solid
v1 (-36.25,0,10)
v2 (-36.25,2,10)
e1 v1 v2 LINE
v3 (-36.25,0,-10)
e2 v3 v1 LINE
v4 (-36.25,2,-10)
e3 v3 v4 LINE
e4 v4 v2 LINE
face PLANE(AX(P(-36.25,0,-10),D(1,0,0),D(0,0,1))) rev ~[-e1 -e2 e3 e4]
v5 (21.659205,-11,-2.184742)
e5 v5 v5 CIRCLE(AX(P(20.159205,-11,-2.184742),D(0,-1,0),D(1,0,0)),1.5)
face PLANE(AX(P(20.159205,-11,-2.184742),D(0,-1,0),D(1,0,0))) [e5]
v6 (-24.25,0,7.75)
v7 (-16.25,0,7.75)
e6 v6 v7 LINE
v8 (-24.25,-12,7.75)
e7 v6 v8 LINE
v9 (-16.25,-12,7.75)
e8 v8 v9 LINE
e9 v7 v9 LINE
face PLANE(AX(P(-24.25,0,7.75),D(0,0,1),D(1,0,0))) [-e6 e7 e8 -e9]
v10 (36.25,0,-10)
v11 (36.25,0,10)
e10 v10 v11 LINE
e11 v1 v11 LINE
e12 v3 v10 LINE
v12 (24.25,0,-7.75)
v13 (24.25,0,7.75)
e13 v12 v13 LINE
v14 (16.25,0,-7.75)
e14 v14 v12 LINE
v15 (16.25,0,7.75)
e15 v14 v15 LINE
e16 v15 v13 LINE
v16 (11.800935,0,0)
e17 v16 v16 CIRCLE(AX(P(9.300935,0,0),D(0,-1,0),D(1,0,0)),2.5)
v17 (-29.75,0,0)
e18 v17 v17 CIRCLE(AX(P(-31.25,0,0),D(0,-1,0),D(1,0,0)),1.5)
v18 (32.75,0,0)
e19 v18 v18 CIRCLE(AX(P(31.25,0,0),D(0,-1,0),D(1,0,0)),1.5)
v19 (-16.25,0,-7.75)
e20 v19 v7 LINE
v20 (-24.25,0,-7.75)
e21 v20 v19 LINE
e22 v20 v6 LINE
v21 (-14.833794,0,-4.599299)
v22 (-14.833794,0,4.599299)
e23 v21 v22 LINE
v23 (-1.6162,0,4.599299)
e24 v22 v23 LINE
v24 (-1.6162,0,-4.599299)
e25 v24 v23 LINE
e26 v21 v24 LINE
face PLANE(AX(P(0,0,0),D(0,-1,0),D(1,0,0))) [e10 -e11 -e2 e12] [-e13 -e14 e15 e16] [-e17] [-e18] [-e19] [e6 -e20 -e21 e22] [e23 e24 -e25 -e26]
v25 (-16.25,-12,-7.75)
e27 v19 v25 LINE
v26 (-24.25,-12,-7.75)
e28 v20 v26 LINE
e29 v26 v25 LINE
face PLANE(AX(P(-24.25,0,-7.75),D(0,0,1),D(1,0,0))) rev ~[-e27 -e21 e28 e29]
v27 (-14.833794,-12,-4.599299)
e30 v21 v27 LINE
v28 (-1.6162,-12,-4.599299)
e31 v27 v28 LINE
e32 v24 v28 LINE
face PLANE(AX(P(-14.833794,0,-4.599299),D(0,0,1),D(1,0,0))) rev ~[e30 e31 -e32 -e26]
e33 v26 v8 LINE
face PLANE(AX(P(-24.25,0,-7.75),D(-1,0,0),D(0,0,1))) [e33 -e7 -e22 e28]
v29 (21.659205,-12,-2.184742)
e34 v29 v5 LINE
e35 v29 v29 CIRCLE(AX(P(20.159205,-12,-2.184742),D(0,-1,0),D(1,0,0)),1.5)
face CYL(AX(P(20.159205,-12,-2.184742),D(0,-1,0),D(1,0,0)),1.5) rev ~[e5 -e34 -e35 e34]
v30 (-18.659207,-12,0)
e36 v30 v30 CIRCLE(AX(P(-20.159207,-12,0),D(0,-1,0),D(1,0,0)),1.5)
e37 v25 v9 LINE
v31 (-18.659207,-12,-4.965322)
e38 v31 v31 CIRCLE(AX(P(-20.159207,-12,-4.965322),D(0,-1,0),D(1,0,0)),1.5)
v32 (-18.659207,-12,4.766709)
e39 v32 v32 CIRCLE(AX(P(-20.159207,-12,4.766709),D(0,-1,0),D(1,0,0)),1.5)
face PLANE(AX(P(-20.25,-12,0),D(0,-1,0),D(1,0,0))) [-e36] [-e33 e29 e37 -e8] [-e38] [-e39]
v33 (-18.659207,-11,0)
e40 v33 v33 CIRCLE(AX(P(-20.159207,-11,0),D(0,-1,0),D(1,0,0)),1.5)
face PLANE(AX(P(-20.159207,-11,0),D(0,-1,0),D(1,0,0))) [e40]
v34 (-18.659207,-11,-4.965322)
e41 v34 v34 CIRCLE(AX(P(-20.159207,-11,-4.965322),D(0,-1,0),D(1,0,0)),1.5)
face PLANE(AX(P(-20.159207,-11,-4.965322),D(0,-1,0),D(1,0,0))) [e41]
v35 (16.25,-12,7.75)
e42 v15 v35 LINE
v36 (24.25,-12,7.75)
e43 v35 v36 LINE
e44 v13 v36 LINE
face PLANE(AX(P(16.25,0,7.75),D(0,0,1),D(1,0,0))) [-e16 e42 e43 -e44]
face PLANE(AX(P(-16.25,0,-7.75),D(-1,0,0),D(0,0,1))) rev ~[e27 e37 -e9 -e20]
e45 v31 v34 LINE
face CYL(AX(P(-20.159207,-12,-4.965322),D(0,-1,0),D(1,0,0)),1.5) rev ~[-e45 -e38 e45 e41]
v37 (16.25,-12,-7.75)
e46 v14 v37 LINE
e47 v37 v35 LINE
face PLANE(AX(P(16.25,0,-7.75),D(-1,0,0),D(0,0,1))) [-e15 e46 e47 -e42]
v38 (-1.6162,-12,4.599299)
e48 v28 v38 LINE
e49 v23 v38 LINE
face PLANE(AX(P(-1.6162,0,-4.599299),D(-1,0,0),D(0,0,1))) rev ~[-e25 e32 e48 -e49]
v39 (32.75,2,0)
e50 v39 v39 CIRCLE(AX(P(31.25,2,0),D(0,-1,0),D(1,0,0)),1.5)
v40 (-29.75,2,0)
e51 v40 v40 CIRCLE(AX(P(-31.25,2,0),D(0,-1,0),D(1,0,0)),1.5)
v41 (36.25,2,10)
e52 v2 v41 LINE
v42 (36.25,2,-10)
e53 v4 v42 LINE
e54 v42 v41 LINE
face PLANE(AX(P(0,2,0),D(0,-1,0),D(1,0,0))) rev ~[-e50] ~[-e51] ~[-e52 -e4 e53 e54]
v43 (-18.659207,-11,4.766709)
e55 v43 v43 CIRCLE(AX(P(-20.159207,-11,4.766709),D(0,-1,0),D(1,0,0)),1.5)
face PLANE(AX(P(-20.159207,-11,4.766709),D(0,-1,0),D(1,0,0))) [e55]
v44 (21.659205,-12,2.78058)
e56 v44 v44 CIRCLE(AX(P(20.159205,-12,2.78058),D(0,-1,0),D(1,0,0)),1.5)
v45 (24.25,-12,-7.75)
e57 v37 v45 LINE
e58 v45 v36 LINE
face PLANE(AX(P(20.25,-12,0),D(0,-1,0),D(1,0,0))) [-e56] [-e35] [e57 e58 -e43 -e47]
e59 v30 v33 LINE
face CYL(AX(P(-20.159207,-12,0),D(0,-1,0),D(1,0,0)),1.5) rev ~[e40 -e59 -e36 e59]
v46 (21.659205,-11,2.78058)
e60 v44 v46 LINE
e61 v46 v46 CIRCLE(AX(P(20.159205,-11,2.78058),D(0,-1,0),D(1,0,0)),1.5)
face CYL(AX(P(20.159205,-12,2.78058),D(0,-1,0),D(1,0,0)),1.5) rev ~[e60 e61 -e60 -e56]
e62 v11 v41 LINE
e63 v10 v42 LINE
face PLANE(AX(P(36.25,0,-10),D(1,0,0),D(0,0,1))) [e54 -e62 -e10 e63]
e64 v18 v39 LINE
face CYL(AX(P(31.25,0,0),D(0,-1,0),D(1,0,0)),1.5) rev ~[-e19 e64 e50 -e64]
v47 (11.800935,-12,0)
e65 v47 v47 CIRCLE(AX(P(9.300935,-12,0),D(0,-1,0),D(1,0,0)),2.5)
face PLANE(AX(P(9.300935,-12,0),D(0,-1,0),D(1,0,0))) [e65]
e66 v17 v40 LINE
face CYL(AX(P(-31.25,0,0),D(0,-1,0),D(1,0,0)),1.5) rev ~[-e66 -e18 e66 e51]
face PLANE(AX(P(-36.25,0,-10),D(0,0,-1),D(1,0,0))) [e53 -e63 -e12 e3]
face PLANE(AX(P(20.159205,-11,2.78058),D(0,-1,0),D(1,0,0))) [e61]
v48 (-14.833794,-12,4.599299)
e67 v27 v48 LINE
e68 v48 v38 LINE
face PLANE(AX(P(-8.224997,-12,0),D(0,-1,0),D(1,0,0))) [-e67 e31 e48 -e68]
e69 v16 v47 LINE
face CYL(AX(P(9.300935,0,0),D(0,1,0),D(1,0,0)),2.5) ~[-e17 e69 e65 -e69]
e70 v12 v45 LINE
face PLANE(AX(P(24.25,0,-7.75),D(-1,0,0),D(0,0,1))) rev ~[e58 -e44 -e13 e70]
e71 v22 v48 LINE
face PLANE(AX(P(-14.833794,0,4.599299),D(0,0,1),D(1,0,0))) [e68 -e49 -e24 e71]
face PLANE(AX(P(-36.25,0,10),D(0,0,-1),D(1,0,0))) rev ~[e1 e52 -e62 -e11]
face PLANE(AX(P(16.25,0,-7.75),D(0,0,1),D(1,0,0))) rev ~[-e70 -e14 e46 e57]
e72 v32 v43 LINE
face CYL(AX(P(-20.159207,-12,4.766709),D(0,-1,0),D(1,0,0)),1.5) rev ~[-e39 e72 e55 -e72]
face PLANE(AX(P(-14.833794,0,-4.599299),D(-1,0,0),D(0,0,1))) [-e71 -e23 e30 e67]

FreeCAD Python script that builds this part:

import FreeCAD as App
import Part
import Sketcher
Q = App.Units.Quantity


def add_polygon(sketch, points):
    """Adds a closed chain of lines whose ends are joined by coincident constraints."""
    first, n = sketch.GeometryCount, len(points)
    for a, b in zip(points, points[1:] + points[:1]):
        sketch.addGeometry(Part.LineSegment(App.Vector(*a, 0), App.Vector(*b, 0)), False)
    for i in range(n):
        sketch.addConstraint(Sketcher.Constraint("Coincident", first + i, 2, first + (i + 1) % n, 1))

doc = App.newDocument("Part")
body = doc.addObject("PartDesign::Body", "Body")

sketch1 = body.newObject("Sketcher::SketchObject", "Sketch")
sketch1.AttachmentSupport = (doc.getObject("XZ_Plane"), [""])
sketch1.MapMode = "FlatFace"
add_polygon(sketch1, [(-36, 10), (-36, -10), (36, -10), (36, 10)])
sketch1.addConstraint(Sketcher.Constraint("Vertical", 0))
sketch1.addConstraint(Sketcher.Constraint("Horizontal", 1))
sketch1.addConstraint(Sketcher.Constraint("Vertical", 2))
sketch1.addConstraint(Sketcher.Constraint("Horizontal", 3))
sketch1.addConstraint(Sketcher.Constraint("Symmetric", 0, 2, 2, 2, -1, 1))
sketch1.addConstraint(Sketcher.Constraint("DistanceY", 0, 2, 0, 1, Q("20 mm")))
sketch1.addConstraint(Sketcher.Constraint("DistanceX", 1, 1, 1, 2, Q("72.5 mm")))
pad1 = body.newObject("PartDesign::Pad", "Pad")
pad1.Profile = sketch1
pad1.Length = 2
pad1.Reversed = True

sketch2 = body.newObject("Sketcher::SketchObject", "Sketch001")
sketch2.AttachmentSupport = (doc.getObject("XZ_Plane"), [""])
sketch2.MapMode = "FlatFace"
sketch2.addGeometry(Part.Circle(App.Vector(-31.2, 0, 0), App.Vector(0, 0, 1), 1.5), False)
sketch2.addGeometry(Part.Circle(App.Vector(31.2, 0, 0), App.Vector(0, 0, 1), 1.5), False)
sketch2.addConstraint(Sketcher.Constraint("Equal", 0, 1))
sketch2.addConstraint(Sketcher.Constraint("Symmetric", 0, 3, 1, 3, -1, 1))
sketch2.addConstraint(Sketcher.Constraint("PointOnObject", 0, 3, -1))
sketch2.addConstraint(Sketcher.Constraint("Diameter", 0, Q("3 mm")))
sketch2.addConstraint(Sketcher.Constraint("DistanceX", 0, 3, 1, 3, Q("62.5 mm")))
pocket1 = body.newObject("PartDesign::Pocket", "Pocket")
pocket1.Profile = sketch2
pocket1.Type = "ThroughAll"

sketch3 = body.newObject("Sketcher::SketchObject", "Sketch002")
sketch3.AttachmentSupport = (doc.getObject("XZ_Plane"), [""])
sketch3.MapMode = "FlatFace"
add_polygon(sketch3, [(-24.2, 7.8), (-24.2, -7.8), (-16.2, -7.8), (-16.2, 7.8)])
add_polygon(sketch3, [(16.2, 7.8), (16.2, -7.8), (24.2, -7.8), (24.2, 7.8)])
add_polygon(sketch3, [(-14.8, 4.6), (-14.8, -4.6), (-1.6, -4.6), (-1.6, 4.6)])
sketch3.addGeometry(Part.Circle(App.Vector(9.3, 0, 0), App.Vector(0, 0, 1), 2.5), False)
sketch3.addConstraint(Sketcher.Constraint("Vertical", 0))
sketch3.addConstraint(Sketcher.Constraint("Horizontal", 1))
sketch3.addConstraint(Sketcher.Constraint("Vertical", 2))
sketch3.addConstraint(Sketcher.Constraint("Horizontal", 3))
sketch3.addConstraint(Sketcher.Constraint("Vertical", 4))
sketch3.addConstraint(Sketcher.Constraint("Horizontal", 5))
sketch3.addConstraint(Sketcher.Constraint("Vertical", 6))
sketch3.addConstraint(Sketcher.Constraint("Horizontal", 7))
sketch3.addConstraint(Sketcher.Constraint("Vertical", 8))
sketch3.addConstraint(Sketcher.Constraint("Horizontal", 9))
sketch3.addConstraint(Sketcher.Constraint("Vertical", 10))
sketch3.addConstraint(Sketcher.Constraint("Horizontal", 11))
sketch3.addConstraint(Sketcher.Constraint("Symmetric", 2, 2, 4, 2, -1, 1))
sketch3.addConstraint(Sketcher.Constraint("Symmetric", 0, 2, 6, 2, -1, 1))
sketch3.addConstraint(Sketcher.Constraint("PointOnObject", 12, 3, -1))
sketch3.addConstraint(Sketcher.Constraint("Horizontal", 1, 2, 4, 2))
sketch3.addConstraint(Sketcher.Constraint("Diameter", 12, Q("5 mm")))
sketch3.addConstraint(Sketcher.Constraint("DistanceX", 1, 1, 1, 2, Q("8 mm")))
sketch3.addConstraint(Sketcher.Constraint("DistanceY", 0, 2, 0, 1, Q("15.5 mm")))
sketch3.addConstraint(Sketcher.Constraint("DistanceX", 1, 2, 4, 2, Q("32.5 mm")))
sketch3.addConstraint(Sketcher.Constraint("DistanceY", 8, 2, -1, 1, Q("4.599299 mm")))
sketch3.addConstraint(Sketcher.Constraint("DistanceX", 9, 2, -1, 1, Q("1.6162 mm")))
sketch3.addConstraint(Sketcher.Constraint("DistanceY", -1, 1, 10, 2, Q("4.599299 mm")))
sketch3.addConstraint(Sketcher.Constraint("DistanceX", 9, 1, 9, 2, Q("13.217593 mm")))
sketch3.addConstraint(Sketcher.Constraint("DistanceX", 8, 2, 12, 3, Q("24.134729 mm")))
pad2 = body.newObject("PartDesign::Pad", "Pad001")
pad2.Profile = sketch3
pad2.Length = 12

sketch4 = body.newObject("Sketcher::SketchObject", "Sketch003")
sketch4.AttachmentSupport = (doc.getObject("XZ_Plane"), [""])
sketch4.MapMode = "FlatFace"
sketch4.AttachmentOffset = App.Placement(App.Vector(0, 0, 12), App.Rotation())
sketch4.addGeometry(Part.Circle(App.Vector(-20.2, 4.8, 0), App.Vector(0, 0, 1), 1.5), False)
sketch4.addGeometry(Part.Circle(App.Vector(-20.2, 0, 0), App.Vector(0, 0, 1), 1.5), False)
sketch4.addGeometry(Part.Circle(App.Vector(-20.2, -5, 0), App.Vector(0, 0, 1), 1.5), False)
sketch4.addGeometry(Part.Circle(App.Vector(20.2, 2.8, 0), App.Vector(0, 0, 1), 1.5), False)
sketch4.addGeometry(Part.Circle(App.Vector(20.2, -2.2, 0), App.Vector(0, 0, 1), 1.5), False)
sketch4.addConstraint(Sketcher.Constraint("Equal", 0, 1))
sketch4.addConstraint(Sketcher.Constraint("Equal", 1, 2))
sketch4.addConstraint(Sketcher.Constraint("Equal", 2, 3))
sketch4.addConstraint(Sketcher.Constraint("Equal", 3, 4))
sketch4.addConstraint(Sketcher.Constraint("PointOnObject", 1, 3, -1))
sketch4.addConstraint(Sketcher.Constraint("Vertical", 0, 3, 1, 3))
sketch4.addConstraint(Sketcher.Constraint("Vertical", 1, 3, 2, 3))
sketch4.addConstraint(Sketcher.Constraint("Vertical", 3, 3, 4, 3))
sketch4.addConstraint(Sketcher.Constraint("Diameter", 0, Q("3 mm")))
sketch4.addConstraint(Sketcher.Constraint("DistanceY", 2, 3, 3, 3, Q("7.745902 mm")))
sketch4.addConstraint(Sketcher.Constraint("DistanceY", -1, 1, 0, 3, Q("4.766709 mm")))
sketch4.addConstraint(Sketcher.Constraint("DistanceY", 2, 3, -1, 1, Q("4.965322 mm")))
sketch4.addConstraint(Sketcher.Constraint("DistanceY", 4, 3, -1, 1, Q("2.184742 mm")))
sketch4.addConstraint(Sketcher.Constraint("DistanceX", 0, 3, 3, 3, Q("40.318412 mm")))
sketch4.addConstraint(Sketcher.Constraint("DistanceX", 0, 3, -1, 1, Q("20.159207 mm")))
pocket2 = body.newObject("PartDesign::Pocket", "Pocket001")
pocket2.Profile = sketch4
pocket2.Length = 1

doc.recompute()
